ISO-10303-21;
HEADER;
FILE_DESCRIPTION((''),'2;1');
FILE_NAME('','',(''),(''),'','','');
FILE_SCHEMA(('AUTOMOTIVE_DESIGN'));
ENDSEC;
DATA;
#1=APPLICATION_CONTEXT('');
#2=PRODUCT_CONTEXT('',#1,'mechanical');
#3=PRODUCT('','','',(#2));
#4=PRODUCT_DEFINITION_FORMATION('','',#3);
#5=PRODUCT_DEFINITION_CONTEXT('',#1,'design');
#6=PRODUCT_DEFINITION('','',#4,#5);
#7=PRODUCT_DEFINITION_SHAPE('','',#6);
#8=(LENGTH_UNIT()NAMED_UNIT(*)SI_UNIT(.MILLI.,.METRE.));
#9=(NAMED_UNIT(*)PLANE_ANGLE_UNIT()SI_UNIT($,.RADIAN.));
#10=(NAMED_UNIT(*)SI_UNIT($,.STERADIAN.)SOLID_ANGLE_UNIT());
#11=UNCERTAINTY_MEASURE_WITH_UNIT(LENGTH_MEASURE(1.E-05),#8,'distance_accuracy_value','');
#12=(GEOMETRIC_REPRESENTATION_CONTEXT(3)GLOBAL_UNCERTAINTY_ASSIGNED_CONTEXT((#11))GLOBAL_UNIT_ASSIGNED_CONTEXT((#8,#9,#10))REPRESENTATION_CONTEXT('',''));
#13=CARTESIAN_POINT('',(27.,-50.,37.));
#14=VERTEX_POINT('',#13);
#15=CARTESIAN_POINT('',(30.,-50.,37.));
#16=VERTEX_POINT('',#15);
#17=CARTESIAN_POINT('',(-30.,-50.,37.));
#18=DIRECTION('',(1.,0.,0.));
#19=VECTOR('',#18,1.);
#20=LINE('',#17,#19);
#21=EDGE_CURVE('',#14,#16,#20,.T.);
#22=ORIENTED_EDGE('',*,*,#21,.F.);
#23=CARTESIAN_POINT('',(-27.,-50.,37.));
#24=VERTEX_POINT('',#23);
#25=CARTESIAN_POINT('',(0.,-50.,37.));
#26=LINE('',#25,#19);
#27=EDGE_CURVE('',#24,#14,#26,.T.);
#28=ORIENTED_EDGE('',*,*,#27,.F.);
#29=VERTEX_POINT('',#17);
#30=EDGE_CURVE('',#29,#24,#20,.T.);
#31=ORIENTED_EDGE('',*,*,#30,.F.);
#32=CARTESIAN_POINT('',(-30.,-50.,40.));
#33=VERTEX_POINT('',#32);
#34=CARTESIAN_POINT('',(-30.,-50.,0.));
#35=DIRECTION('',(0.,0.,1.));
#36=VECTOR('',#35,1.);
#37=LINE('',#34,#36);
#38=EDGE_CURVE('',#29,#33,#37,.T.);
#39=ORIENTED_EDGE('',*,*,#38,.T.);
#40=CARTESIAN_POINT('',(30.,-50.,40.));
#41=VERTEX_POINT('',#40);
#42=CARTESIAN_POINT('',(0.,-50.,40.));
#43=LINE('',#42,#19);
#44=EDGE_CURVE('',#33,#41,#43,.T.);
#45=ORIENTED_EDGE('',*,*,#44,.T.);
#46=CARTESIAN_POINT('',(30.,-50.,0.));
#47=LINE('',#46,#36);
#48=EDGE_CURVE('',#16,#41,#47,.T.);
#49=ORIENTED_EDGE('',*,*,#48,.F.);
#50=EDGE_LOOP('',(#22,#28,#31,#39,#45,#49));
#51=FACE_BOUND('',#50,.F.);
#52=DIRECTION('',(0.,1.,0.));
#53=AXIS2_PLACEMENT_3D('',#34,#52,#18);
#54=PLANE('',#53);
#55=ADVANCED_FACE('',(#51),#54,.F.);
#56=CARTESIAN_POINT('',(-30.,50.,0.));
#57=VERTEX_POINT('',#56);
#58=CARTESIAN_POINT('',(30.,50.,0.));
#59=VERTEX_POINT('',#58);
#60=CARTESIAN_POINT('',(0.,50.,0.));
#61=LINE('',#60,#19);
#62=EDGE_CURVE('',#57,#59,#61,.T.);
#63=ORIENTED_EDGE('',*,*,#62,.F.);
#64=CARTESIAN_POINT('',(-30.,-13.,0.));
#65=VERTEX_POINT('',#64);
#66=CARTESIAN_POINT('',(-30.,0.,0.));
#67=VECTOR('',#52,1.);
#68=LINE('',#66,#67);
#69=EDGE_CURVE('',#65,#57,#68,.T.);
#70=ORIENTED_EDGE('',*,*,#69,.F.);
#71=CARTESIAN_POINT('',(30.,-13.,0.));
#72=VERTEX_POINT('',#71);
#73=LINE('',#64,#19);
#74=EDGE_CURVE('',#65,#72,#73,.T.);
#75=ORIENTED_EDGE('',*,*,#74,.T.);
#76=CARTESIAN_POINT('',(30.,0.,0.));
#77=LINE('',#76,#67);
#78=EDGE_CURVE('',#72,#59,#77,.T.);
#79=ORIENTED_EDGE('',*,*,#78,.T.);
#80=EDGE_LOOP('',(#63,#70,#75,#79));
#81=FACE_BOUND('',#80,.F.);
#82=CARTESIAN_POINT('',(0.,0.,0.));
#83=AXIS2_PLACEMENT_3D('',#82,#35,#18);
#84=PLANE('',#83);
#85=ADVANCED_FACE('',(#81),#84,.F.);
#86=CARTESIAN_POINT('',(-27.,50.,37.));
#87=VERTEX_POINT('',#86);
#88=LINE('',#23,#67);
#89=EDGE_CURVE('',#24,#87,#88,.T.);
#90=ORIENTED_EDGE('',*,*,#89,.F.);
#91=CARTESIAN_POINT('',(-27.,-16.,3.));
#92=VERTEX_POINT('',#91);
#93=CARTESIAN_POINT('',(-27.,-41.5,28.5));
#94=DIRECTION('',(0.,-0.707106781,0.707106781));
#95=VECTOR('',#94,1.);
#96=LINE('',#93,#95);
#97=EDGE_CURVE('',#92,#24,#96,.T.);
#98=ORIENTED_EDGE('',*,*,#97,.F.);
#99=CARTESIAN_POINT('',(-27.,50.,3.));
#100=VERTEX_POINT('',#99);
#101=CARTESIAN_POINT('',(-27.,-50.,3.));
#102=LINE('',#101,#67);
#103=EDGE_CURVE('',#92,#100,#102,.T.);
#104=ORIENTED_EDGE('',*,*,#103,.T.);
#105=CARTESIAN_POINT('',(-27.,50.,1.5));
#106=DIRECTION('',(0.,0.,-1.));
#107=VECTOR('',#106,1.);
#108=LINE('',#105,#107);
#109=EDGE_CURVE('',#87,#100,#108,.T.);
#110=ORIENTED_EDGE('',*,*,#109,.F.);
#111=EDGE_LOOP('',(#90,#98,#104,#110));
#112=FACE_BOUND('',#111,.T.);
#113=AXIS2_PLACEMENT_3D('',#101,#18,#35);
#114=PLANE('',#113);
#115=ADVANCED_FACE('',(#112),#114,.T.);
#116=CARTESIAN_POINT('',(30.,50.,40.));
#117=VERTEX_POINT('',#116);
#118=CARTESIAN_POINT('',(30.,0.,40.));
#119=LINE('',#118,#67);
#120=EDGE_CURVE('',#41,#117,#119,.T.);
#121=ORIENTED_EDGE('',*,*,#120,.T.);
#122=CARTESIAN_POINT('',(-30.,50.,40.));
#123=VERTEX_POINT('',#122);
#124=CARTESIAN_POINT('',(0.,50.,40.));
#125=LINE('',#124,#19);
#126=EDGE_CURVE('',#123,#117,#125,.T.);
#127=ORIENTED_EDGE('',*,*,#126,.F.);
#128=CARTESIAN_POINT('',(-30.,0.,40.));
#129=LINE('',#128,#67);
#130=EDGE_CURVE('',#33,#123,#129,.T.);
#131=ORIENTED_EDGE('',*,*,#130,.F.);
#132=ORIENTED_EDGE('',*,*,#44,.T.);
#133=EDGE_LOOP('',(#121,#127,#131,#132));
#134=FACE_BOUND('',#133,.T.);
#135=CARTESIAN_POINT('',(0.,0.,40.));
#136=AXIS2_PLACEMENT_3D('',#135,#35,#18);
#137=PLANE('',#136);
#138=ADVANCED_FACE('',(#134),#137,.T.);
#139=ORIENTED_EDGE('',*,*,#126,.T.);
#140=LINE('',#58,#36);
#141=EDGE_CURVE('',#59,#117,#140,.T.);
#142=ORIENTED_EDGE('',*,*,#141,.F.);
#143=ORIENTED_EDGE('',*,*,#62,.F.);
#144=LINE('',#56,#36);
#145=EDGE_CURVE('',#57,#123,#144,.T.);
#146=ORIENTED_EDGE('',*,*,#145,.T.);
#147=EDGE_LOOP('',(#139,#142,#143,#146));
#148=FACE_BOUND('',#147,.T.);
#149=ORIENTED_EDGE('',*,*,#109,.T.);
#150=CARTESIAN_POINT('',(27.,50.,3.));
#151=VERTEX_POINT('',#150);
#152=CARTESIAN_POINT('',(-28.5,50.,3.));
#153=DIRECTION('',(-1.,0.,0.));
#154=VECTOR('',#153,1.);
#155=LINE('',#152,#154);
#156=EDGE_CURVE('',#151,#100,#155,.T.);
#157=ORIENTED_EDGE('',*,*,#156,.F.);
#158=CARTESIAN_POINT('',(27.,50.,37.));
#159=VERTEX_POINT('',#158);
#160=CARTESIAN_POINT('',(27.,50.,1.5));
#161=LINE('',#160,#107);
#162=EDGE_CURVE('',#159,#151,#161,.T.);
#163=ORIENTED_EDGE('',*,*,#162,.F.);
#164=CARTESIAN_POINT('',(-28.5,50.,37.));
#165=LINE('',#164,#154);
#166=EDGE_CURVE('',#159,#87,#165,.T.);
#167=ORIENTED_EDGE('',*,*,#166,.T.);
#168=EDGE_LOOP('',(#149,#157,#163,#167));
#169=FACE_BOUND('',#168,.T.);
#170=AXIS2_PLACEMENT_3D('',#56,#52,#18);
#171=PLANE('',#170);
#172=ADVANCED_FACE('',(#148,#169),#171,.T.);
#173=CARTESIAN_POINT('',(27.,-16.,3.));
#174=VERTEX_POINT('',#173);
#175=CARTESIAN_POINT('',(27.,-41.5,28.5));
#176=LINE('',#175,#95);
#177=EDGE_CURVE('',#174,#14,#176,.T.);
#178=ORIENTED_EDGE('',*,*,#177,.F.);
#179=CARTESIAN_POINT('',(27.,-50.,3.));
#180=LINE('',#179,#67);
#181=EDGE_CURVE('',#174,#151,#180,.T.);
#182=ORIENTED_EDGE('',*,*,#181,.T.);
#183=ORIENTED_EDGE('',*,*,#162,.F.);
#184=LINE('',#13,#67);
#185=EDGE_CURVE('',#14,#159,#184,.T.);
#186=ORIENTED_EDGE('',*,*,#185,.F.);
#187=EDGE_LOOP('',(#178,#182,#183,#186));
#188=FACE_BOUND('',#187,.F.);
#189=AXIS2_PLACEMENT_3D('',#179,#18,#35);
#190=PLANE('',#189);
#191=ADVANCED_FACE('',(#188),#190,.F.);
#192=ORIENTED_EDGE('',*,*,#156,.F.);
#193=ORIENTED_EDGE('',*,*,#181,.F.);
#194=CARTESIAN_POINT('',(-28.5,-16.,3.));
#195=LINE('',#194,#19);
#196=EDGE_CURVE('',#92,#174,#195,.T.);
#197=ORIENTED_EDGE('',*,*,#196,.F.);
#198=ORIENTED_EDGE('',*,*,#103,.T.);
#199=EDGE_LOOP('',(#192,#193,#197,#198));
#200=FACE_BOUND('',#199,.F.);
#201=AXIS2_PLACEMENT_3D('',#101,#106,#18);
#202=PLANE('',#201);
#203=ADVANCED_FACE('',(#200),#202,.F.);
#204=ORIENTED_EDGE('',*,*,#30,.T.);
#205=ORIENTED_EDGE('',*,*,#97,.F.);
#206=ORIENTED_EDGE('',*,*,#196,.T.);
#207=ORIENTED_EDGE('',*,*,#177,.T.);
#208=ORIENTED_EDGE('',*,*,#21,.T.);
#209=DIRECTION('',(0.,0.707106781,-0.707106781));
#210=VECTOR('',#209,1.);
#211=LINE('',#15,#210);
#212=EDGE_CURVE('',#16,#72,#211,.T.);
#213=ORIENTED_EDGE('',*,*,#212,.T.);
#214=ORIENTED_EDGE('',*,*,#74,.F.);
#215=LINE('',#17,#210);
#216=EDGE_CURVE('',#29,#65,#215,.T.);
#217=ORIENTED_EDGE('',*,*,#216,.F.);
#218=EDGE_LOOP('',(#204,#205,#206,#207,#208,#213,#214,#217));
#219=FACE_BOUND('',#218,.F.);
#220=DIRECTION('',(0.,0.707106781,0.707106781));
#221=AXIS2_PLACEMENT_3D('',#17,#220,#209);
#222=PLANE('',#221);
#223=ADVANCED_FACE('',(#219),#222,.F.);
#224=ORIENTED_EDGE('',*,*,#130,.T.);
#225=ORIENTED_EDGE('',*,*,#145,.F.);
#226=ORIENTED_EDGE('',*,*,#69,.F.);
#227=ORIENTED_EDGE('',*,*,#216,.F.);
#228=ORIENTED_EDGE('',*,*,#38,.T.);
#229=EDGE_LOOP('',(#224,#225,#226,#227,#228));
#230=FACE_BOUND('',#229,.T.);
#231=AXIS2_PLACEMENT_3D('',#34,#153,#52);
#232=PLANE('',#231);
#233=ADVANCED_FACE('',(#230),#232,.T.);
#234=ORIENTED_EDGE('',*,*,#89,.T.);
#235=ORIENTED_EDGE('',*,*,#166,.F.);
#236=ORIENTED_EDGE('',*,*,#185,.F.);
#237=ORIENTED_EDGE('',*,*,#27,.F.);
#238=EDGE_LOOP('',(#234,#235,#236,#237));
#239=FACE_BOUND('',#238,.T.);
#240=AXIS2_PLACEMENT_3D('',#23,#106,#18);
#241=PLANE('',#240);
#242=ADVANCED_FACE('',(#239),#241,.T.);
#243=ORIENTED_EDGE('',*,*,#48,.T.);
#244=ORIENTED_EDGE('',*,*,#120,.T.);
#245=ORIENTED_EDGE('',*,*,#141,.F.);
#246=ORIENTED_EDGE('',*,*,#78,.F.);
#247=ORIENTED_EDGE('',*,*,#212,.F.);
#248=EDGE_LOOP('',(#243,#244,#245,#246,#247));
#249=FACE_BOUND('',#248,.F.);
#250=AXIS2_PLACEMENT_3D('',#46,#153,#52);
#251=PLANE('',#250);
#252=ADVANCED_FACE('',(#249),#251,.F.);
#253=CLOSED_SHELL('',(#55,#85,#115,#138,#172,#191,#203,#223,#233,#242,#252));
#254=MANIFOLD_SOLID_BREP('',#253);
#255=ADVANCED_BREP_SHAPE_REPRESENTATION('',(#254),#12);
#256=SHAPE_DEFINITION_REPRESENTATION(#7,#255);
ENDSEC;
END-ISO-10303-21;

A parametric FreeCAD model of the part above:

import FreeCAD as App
import Part
import Sketcher


def add_polygon(sketch, points):
    """Adds a closed chain of lines whose ends are joined by coincident constraints."""
    first, n = sketch.GeometryCount, len(points)
    for a, b in zip(points, points[1:] + points[:1]):
        sketch.addGeometry(Part.LineSegment(App.Vector(*a, 0), App.Vector(*b, 0)), False)
    for i in range(n):
        sketch.addConstraint(Sketcher.Constraint("Coincident", first + i, 2, first + (i + 1) % n, 1))

doc = App.newDocument("Part")
body = doc.addObject("PartDesign::Body", "Body")

# Sketch on XY plane
sketch1 = body.newObject("Sketcher::SketchObject", "Sketch")
sketch1.AttachmentSupport = (doc.getObject("XY_Plane"), [""])
sketch1.MapMode = "FlatFace"
add_polygon(sketch1, [(-30, 50), (-30, -50), (30, -50), (30, 50)])  # lines 0-3
sketch1.addConstraint(Sketcher.Constraint("Vertical", 0))
sketch1.addConstraint(Sketcher.Constraint("Horizontal", 1))
sketch1.addConstraint(Sketcher.Constraint("Vertical", 2))
sketch1.addConstraint(Sketcher.Constraint("Horizontal", 3))
sketch1.addConstraint(Sketcher.Constraint("Symmetric", 0, 2, 2, 2, -1, 1))
sketch1.addConstraint(Sketcher.Constraint("DistanceX", 1, 1, 1, 2, 60.0))
sketch1.addConstraint(Sketcher.Constraint("DistanceY", 0, 2, 0, 1, 100.0))
pad1 = body.newObject("PartDesign::Pad", "Pad")
pad1.Profile = sketch1
pad1.Length = 40

# Sketch on XZ plane
sketch2 = body.newObject("Sketcher::SketchObject", "Sketch001")
sketch2.AttachmentSupport = (doc.getObject("XZ_Plane"), [""])
sketch2.MapMode = "FlatFace"
sketch2.AttachmentOffset = App.Placement(App.Vector(0, 0, 50), App.Rotation())
add_polygon(sketch2, [(-27, 37), (-27, 3), (27, 3), (27, 37)])  # lines 0-3
sketch2.addConstraint(Sketcher.Constraint("Vertical", 0))
sketch2.addConstraint(Sketcher.Constraint("Horizontal", 1))
sketch2.addConstraint(Sketcher.Constraint("Vertical", 2))
sketch2.addConstraint(Sketcher.Constraint("Horizontal", 3))
sketch2.addConstraint(Sketcher.Constraint("DistanceX", 1, 1, 1, 2, 54.0))
sketch2.addConstraint(Sketcher.Constraint("DistanceY", 0, 2, 0, 1, 34.0))
sketch2.addConstraint(Sketcher.Constraint("DistanceX", 0, 2, -1, 1, 27.0))
sketch2.addConstraint(Sketcher.Constraint("DistanceY", -1, 1, 0, 2, 3.0))
pocket1 = body.newObject("PartDesign::Pocket", "Pocket")
pocket1.Profile = sketch2
pocket1.Length = 141

# Sketch on YZ plane
sketch3 = body.newObject("Sketcher::SketchObject", "Sketch002")
sketch3.AttachmentSupport = (doc.getObject("YZ_Plane"), [""])
sketch3.MapMode = "FlatFace"
sketch3.AttachmentOffset = App.Placement(App.Vector(0, 0, -30), App.Rotation())
add_polygon(sketch3, [(-50, 37), (-13, 0), (-50, 0)])  # lines 0-2
sketch3.addConstraint(Sketcher.Constraint("Horizontal", 1))
sketch3.addConstraint(Sketcher.Constraint("Vertical", 2))
sketch3.addConstraint(Sketcher.Constraint("PointOnObject", 0, 2, -1))
sketch3.addConstraint(Sketcher.Constraint("Equal", 1, 2))
sketch3.addConstraint(Sketcher.Constraint("DistanceX", 1, 2, 1, 1, 37.0))
sketch3.addConstraint(Sketcher.Constraint("DistanceX", 0, 2, -1, 1, 13.0))
pocket2 = body.newObject("PartDesign::Pocket", "Pocket001")
pocket2.Profile = sketch3
pocket2.Length = 60
pocket2.Reversed = True

doc.recompute()
